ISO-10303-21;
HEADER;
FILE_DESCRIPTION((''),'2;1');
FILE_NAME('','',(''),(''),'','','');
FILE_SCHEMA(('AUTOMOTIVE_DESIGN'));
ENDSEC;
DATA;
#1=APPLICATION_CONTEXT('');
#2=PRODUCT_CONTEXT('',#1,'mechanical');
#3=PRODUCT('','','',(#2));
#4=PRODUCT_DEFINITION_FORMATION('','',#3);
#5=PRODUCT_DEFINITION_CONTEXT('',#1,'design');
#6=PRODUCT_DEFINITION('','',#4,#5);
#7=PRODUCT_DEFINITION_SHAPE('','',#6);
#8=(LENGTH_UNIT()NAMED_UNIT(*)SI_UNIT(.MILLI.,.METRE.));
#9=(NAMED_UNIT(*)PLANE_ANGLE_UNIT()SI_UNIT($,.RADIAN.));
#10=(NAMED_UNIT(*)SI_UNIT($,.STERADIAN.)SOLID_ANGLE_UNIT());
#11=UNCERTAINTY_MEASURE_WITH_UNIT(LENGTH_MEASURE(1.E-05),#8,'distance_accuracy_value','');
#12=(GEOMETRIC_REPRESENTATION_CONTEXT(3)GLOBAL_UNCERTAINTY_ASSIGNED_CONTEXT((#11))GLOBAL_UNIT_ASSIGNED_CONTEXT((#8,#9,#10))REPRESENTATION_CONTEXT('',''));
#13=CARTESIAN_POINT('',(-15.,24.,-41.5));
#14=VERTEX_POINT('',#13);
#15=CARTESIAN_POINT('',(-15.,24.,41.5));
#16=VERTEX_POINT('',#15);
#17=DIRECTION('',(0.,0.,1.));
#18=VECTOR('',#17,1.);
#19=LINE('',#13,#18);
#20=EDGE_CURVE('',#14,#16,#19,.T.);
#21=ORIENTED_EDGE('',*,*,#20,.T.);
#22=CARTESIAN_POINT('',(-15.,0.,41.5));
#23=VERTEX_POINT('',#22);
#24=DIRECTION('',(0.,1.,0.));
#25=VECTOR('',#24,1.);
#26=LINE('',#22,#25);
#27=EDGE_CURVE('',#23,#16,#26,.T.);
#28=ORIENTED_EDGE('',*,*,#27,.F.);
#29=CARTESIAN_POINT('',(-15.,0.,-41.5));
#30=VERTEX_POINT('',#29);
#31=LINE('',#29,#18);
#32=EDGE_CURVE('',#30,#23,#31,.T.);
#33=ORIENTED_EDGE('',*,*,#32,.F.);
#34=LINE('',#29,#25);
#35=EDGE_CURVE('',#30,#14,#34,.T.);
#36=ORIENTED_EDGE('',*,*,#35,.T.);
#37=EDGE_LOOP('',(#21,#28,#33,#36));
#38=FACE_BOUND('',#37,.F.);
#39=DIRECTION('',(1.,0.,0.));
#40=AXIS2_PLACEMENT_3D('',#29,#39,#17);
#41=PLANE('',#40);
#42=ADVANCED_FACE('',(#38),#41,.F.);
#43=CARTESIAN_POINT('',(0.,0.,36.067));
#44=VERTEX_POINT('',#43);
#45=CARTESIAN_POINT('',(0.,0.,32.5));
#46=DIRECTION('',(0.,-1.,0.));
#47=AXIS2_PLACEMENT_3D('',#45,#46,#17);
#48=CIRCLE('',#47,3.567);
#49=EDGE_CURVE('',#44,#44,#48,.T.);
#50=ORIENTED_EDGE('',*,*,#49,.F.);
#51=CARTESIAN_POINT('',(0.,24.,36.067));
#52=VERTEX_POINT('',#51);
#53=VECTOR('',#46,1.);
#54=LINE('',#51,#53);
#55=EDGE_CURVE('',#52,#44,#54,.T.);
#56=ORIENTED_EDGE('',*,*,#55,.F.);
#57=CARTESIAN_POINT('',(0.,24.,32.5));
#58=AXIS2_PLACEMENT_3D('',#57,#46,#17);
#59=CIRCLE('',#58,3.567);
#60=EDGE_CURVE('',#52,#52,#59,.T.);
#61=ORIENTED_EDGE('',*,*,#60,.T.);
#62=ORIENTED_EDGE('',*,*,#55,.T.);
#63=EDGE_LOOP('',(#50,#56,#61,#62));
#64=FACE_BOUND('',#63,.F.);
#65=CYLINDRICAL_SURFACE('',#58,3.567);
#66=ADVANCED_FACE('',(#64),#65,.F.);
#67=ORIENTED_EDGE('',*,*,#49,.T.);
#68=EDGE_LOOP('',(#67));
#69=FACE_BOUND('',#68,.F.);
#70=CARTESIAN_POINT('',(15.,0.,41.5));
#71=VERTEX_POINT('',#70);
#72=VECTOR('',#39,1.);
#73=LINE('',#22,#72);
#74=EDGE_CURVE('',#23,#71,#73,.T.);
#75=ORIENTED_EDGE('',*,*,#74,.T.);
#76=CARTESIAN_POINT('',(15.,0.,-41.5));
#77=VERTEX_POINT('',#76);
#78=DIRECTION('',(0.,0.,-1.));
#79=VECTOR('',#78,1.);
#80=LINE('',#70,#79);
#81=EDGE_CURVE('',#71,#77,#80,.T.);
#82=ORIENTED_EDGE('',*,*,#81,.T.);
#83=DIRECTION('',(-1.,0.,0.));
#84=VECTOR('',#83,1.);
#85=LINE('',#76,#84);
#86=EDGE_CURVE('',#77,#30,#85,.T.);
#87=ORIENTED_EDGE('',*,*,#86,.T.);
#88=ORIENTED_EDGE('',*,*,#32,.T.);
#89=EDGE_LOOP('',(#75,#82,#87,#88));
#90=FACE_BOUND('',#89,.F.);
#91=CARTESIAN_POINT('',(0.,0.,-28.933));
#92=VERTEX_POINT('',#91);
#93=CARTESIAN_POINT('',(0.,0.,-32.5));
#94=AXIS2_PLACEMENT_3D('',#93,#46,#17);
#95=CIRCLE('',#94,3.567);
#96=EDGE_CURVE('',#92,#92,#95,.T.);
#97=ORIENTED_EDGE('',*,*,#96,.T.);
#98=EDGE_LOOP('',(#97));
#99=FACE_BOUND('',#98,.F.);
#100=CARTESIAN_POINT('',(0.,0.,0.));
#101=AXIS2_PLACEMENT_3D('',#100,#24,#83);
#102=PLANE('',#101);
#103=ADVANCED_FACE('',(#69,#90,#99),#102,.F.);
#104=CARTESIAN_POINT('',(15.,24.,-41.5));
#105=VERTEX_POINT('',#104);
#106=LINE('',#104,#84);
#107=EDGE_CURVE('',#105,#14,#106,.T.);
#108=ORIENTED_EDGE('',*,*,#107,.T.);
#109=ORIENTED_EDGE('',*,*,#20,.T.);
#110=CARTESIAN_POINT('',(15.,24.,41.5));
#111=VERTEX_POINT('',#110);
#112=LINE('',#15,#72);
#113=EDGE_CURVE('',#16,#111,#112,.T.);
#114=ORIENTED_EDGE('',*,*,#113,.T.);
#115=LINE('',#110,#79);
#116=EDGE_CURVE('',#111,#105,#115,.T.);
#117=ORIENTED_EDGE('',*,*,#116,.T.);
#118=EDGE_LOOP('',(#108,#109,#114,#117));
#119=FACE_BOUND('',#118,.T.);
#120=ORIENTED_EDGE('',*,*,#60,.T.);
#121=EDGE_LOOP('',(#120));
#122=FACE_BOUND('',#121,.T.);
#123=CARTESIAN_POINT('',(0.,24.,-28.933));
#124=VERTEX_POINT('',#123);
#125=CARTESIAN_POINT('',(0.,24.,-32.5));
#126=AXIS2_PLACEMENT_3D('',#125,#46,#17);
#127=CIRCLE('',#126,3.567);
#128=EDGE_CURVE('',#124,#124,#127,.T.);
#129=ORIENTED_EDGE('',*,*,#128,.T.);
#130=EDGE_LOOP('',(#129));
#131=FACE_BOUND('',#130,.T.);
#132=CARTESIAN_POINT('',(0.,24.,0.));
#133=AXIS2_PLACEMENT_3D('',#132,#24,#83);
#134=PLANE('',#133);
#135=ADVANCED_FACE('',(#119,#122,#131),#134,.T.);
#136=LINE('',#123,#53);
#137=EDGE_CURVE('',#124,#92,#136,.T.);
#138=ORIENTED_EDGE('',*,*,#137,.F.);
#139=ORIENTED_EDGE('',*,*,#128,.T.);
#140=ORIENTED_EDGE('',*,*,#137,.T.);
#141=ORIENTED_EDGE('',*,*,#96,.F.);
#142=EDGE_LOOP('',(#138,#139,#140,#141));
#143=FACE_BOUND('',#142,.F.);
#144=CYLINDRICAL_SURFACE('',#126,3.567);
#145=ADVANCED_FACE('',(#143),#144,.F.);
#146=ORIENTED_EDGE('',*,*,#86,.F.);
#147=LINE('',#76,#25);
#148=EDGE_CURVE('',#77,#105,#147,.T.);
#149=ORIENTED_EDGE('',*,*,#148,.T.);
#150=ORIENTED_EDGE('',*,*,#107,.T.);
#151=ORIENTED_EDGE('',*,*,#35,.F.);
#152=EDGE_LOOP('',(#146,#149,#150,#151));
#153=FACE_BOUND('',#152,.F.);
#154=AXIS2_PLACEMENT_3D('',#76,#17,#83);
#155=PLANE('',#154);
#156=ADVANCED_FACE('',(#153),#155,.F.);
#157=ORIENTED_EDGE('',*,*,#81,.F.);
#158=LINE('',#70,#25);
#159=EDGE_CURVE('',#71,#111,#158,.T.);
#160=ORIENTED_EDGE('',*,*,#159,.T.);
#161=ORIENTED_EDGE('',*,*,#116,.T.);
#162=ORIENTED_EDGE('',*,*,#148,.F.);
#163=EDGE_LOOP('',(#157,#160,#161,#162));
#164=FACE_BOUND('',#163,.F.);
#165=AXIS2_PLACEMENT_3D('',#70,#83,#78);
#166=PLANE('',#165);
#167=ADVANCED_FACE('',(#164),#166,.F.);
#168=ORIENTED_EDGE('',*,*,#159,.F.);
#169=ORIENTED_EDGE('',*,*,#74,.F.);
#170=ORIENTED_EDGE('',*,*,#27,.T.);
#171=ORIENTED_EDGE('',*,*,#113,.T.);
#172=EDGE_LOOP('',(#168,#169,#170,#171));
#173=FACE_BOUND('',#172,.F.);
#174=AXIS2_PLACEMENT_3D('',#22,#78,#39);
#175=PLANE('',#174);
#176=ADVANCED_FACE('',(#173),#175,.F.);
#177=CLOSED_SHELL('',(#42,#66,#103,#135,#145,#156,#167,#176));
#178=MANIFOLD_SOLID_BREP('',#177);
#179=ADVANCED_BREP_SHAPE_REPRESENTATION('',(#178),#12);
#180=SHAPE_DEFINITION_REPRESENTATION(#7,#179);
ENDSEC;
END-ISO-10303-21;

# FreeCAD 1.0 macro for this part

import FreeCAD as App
import Part
import Sketcher

V = App.Vector
Q = App.Units.Quantity


def add_polygon(sketch, points):
    """Adds a closed chain of lines whose ends are joined by coincident constraints."""
    first, n = sketch.GeometryCount, len(points)
    for a, b in zip(points, points[1:] + points[:1]):
        sketch.addGeometry(Part.LineSegment(App.Vector(*a, 0), App.Vector(*b, 0)), False)
    for i in range(n):
        sketch.addConstraint(Sketcher.Constraint("Coincident", first + i, 2, first + (i + 1) % n, 1))

doc = App.newDocument("Part")
body = doc.addObject("PartDesign::Body", "Body")

sketch1 = body.newObject("Sketcher::SketchObject", "Sketch")
sketch1.AttachmentSupport = (doc.getObject("XZ_Plane"), [""])
sketch1.MapMode = "FlatFace"
add_polygon(sketch1, [(15, 42), (15, -42), (-15, -42), (-15, 42)])
sketch1.addConstraint([
    Sketcher.Constraint("Vertical", 0),
    Sketcher.Constraint("Horizontal", 1),
    Sketcher.Constraint("Vertical", 2),
    Sketcher.Constraint("Horizontal", 3),
    Sketcher.Constraint("Symmetric", 0, 2, 2, 2, -1, 1),
    Sketcher.Constraint("DistanceX", 1, 2, 1, 1, Q("30 mm")),
    Sketcher.Constraint("DistanceY", 0, 2, 0, 1, Q("83 mm")),
])
pad1 = body.newObject("PartDesign::Pad", "Pad")
pad1.Profile = sketch1
pad1.Length = 24
pad1.Reversed = True

sketch2 = body.newObject("Sketcher::SketchObject", "Sketch001")
sketch2.AttachmentSupport = (doc.getObject("XZ_Plane"), [""])
sketch2.MapMode = "FlatFace"
sketch2.AttachmentOffset = App.Placement(V(0, 0, -24), App.Rotation())
sketch2.addGeometry([
    Part.Circle(V(0, 32.5, 0), V(0, 0, 1), 3.6),
    Part.Circle(V(0, -32.5, 0), V(0, 0, 1), 3.6),
], False)
sketch2.addConstraint([
    Sketcher.Constraint("Equal", 0, 1),
    Sketcher.Constraint("Symmetric", 0, 3, 1, 3, -1, 1),
    Sketcher.Constraint("PointOnObject", 0, 3, -2),
    Sketcher.Constraint("Diameter", 0, Q("7.134 mm")),
    Sketcher.Constraint("DistanceY", 1, 3, 0, 3, Q("65 mm")),
])
doc.recompute()
hole = body.newObject("PartDesign::Hole", "Hole")
hole.Profile = sketch2
hole.ThreadType = "None"
hole.Diameter = 7.134
hole.DepthType = "ThroughAll"
hole.Reversed = True

doc.recompute()
